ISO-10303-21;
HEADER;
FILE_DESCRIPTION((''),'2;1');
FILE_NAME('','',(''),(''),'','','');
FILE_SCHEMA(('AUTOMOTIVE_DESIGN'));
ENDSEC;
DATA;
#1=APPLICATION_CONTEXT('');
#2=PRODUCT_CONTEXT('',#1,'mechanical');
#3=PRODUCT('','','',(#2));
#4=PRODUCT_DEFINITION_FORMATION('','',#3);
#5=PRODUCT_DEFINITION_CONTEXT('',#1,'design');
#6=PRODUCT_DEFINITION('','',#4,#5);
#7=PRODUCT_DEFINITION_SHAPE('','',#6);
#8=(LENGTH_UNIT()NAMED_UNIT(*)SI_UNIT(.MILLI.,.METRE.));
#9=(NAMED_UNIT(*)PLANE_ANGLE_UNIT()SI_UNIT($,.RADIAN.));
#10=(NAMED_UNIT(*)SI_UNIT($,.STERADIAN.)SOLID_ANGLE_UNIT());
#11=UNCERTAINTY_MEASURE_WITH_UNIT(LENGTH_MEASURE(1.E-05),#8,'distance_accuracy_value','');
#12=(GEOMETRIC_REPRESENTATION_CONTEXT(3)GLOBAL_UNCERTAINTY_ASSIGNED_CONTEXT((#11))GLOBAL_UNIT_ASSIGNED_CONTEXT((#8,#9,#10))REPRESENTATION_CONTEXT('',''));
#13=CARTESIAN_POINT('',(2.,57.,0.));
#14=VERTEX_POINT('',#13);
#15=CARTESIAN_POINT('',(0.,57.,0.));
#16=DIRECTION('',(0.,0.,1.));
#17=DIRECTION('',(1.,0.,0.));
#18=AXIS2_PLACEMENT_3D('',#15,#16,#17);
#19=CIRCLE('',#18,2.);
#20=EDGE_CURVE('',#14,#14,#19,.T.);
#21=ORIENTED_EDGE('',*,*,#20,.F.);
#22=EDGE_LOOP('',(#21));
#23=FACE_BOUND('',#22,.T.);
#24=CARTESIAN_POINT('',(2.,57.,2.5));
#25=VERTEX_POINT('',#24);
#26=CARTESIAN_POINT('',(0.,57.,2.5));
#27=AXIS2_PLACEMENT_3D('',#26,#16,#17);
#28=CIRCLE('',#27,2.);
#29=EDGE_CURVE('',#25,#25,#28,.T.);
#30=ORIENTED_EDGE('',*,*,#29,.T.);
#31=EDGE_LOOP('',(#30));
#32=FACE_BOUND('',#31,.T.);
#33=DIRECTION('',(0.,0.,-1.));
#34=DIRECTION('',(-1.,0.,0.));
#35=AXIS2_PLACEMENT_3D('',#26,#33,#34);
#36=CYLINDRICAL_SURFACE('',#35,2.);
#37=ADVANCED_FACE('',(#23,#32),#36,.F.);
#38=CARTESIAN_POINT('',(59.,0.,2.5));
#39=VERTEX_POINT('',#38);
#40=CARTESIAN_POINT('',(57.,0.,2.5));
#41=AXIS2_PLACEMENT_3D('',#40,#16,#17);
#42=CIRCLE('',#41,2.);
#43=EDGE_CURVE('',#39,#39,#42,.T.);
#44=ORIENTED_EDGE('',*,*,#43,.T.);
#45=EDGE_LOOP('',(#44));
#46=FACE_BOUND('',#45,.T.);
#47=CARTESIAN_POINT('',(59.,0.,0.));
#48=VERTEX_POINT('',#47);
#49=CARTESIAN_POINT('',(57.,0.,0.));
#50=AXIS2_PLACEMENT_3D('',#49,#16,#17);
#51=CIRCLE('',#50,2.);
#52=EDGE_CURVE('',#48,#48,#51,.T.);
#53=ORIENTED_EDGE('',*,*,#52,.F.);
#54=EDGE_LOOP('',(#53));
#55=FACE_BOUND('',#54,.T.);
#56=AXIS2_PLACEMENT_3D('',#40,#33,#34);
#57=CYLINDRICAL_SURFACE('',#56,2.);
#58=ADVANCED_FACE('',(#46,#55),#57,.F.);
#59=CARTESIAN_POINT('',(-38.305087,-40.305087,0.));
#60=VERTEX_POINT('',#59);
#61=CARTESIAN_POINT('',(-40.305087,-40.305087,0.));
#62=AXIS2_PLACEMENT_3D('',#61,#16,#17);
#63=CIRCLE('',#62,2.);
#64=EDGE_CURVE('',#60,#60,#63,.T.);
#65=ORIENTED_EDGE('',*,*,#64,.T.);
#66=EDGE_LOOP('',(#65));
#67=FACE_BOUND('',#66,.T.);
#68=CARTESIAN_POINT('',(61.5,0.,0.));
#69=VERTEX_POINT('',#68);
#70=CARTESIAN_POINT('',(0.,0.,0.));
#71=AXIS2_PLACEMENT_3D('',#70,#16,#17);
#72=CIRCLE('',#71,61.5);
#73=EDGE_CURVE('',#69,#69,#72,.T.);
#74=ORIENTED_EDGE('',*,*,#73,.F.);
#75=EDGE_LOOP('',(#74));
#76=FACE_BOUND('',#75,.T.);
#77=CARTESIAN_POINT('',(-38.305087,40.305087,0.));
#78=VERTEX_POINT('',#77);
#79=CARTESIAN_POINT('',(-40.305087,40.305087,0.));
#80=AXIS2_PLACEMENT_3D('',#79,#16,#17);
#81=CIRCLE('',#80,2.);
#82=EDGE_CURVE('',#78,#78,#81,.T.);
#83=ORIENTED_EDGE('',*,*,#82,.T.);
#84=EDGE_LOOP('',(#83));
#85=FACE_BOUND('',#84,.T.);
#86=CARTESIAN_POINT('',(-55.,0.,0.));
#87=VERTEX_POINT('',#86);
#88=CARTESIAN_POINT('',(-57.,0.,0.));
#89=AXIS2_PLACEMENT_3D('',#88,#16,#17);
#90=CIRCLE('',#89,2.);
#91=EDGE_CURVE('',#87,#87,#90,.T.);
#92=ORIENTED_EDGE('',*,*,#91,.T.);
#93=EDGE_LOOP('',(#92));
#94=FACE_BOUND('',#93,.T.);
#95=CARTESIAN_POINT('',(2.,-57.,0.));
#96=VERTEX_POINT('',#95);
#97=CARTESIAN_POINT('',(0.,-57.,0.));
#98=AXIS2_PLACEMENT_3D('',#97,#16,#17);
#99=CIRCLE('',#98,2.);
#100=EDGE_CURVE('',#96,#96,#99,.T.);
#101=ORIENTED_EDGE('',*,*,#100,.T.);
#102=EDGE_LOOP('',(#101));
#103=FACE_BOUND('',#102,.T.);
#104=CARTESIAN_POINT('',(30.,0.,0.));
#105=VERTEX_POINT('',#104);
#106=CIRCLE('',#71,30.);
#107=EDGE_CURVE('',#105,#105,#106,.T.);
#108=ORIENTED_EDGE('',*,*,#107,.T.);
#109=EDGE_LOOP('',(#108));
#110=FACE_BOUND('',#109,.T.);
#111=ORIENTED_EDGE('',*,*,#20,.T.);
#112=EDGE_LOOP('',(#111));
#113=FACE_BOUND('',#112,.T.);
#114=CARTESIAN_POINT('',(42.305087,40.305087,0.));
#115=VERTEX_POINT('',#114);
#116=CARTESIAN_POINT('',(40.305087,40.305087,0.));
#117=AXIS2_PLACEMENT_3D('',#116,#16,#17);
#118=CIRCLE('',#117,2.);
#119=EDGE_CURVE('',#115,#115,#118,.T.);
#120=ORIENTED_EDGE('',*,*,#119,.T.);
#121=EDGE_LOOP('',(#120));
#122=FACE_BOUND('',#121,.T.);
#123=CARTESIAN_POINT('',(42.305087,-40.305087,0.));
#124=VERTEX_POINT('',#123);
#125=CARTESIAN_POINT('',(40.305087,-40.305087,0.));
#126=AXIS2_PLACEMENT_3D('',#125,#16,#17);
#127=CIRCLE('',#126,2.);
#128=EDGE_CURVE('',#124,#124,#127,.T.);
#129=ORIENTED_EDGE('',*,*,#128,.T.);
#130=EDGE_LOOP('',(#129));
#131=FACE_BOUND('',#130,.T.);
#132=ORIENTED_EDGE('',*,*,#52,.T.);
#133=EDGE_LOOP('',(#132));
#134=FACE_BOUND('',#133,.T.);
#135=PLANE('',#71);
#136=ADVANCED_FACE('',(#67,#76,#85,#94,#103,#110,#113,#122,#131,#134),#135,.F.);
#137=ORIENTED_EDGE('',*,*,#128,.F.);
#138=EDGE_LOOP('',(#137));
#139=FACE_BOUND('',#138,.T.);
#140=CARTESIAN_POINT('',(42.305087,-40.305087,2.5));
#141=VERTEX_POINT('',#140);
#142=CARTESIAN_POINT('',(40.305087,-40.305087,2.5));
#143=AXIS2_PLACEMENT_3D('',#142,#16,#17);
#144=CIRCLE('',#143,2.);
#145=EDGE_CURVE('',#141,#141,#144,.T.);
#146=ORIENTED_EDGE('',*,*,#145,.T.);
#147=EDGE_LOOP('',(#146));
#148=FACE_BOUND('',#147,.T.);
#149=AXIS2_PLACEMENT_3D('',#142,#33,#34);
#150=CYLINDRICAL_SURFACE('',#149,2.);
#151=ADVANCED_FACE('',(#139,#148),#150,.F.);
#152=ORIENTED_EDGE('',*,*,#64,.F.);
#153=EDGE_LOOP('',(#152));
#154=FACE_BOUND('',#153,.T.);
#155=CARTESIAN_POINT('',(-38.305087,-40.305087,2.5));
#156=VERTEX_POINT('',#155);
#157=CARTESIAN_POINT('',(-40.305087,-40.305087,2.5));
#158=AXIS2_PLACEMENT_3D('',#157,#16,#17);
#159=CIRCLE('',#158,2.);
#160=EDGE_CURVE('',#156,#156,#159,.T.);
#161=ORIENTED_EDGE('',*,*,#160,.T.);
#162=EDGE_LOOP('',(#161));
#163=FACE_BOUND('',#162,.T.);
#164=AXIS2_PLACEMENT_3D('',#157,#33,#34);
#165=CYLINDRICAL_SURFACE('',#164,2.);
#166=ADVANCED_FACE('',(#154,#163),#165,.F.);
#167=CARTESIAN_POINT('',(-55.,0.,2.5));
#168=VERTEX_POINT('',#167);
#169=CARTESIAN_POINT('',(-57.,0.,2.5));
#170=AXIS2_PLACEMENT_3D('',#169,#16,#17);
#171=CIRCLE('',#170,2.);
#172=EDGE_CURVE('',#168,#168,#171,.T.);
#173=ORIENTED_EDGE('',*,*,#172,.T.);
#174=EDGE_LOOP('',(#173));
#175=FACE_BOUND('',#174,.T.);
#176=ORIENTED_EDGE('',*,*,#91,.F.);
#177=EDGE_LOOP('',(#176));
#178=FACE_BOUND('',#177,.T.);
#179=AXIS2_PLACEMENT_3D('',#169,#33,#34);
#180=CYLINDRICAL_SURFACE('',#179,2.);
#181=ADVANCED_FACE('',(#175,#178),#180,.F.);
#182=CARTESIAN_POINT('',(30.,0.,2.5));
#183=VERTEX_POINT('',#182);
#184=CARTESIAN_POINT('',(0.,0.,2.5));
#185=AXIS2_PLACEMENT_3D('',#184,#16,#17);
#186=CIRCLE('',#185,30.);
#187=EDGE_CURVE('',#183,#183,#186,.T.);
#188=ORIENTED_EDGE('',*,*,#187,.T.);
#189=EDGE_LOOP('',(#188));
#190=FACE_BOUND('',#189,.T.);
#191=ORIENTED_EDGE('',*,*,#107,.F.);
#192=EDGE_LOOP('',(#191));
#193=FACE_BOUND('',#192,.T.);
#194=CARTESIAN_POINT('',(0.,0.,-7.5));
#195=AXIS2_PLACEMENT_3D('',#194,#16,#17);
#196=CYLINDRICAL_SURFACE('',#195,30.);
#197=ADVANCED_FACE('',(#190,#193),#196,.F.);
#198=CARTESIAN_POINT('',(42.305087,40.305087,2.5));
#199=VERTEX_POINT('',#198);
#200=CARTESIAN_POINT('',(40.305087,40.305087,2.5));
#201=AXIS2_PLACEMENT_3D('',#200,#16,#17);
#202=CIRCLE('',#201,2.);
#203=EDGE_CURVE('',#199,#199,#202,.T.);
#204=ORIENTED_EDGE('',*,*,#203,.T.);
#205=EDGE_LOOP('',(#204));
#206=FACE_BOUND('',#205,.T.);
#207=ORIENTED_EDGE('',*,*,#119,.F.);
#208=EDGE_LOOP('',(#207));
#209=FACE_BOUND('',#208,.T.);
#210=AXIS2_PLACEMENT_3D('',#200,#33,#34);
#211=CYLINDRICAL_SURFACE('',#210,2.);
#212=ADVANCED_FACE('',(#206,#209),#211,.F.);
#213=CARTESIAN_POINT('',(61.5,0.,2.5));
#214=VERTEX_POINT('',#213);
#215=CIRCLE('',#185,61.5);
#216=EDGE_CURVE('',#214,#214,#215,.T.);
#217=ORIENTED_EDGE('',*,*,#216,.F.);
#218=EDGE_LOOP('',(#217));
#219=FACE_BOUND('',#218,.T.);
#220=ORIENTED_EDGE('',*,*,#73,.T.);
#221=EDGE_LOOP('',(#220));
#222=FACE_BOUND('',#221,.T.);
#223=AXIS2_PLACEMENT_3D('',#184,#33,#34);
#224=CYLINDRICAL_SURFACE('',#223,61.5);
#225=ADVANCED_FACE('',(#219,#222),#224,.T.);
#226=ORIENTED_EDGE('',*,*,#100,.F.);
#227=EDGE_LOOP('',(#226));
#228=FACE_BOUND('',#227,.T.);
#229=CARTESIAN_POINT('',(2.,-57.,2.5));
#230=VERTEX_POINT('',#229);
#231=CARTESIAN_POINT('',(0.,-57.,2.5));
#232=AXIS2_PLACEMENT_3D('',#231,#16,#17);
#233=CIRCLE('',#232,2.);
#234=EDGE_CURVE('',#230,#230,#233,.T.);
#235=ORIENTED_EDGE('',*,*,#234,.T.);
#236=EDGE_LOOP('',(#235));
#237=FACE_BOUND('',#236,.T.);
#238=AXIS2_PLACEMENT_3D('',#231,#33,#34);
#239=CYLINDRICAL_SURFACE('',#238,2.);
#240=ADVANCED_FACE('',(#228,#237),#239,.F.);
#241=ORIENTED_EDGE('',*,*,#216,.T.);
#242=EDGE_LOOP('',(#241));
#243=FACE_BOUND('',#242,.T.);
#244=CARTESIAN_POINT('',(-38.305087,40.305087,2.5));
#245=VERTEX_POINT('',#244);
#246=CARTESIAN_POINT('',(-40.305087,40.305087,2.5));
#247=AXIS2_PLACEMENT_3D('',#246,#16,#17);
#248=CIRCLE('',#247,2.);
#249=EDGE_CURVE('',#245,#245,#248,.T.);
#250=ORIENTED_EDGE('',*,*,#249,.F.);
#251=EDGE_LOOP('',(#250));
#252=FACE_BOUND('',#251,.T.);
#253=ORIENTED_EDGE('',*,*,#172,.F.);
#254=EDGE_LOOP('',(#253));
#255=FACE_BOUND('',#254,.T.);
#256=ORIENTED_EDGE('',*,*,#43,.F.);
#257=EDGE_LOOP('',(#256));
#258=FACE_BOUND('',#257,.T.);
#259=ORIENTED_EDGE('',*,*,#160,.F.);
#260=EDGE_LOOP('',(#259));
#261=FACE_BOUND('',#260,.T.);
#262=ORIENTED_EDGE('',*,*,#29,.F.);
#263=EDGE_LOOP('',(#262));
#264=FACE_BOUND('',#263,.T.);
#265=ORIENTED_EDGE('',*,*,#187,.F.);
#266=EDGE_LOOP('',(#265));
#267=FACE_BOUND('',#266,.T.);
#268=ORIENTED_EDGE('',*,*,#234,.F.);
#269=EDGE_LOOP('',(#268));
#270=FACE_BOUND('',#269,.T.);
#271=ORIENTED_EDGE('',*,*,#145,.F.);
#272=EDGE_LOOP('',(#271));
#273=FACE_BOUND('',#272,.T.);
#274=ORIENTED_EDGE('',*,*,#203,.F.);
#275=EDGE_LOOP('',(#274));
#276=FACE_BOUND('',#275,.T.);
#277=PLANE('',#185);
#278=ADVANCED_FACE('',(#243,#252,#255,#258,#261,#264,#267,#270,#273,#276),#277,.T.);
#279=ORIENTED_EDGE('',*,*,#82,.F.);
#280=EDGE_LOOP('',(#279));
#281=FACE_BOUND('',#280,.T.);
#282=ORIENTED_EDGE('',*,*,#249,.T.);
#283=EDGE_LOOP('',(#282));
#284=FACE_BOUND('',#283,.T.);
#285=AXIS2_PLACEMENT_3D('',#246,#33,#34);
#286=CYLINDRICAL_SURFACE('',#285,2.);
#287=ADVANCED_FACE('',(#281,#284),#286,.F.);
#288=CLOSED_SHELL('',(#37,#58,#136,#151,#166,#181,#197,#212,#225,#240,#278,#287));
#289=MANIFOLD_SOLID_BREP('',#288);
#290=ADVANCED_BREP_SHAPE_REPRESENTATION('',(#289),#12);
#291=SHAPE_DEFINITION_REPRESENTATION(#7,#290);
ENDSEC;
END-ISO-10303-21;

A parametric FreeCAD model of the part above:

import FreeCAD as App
import Part
import Sketcher
Q = App.Units.Quantity

doc = App.newDocument("Part")
body = doc.addObject("PartDesign::Body", "Body")

# Sketch on XY plane
sketch1 = doc.addObject("Sketcher::SketchObject", "Sketch")
body.addObject(sketch1)
sketch1.AttachmentSupport = (doc.XY_Plane, [""])
sketch1.MapMode = "FlatFace"
sketch1.addGeometry([
    Part.Circle(App.Vector(0, 0, 0), App.Vector(0, 0, 1), 61.5),  # 0
    Part.Circle(App.Vector(-40.3, -40.3, 0), App.Vector(0, 0, 1), 2),  # 1
    Part.Circle(App.Vector(-19.5, -11.2, 0), App.Vector(0, 0, 1), 2.6),  # 2
    Part.Circle(App.Vector(0, -57, 0), App.Vector(0, 0, 1), 2),  # 3
    Part.Circle(App.Vector(40.3, -40.3, 0), App.Vector(0, 0, 1), 2),  # 4
    Part.Circle(App.Vector(0, -23.8, 0), App.Vector(0, 0, 1), 2.6),  # 5
    Part.Circle(App.Vector(19.5, -11.2, 0), App.Vector(0, 0, 1), 2.6),  # 6
    Part.Circle(App.Vector(-57, 0, 0), App.Vector(0, 0, 1), 2),  # 7
    Part.Circle(App.Vector(-20.6, 11.9, 0), App.Vector(0, 0, 1), 2.6),  # 8
    Part.Circle(App.Vector(-40.3, 40.3, 0), App.Vector(0, 0, 1), 2),  # 9
    Part.Circle(App.Vector(0, 0, 0), App.Vector(0, 0, 1), 15.5),  # 10
    Part.Circle(App.Vector(20.6, 11.9, 0), App.Vector(0, 0, 1), 2.6),  # 11
    Part.Circle(App.Vector(0, 22.5, 0), App.Vector(0, 0, 1), 2.6),  # 12
    Part.Circle(App.Vector(57, 0, 0), App.Vector(0, 0, 1), 2),  # 13
    Part.Circle(App.Vector(0, 57, 0), App.Vector(0, 0, 1), 2),  # 14
    Part.Circle(App.Vector(40.3, 40.3, 0), App.Vector(0, 0, 1), 2),  # 15
], False)
sketch1.addConstraint([
    Sketcher.Constraint("Coincident", 0, 3, -1, 1),
    Sketcher.Constraint("Coincident", 10, 3, -1, 1),
    Sketcher.Constraint("Equal", 1, 3),
    Sketcher.Constraint("Equal", 3, 4),
    Sketcher.Constraint("Equal", 2, 5),
    Sketcher.Constraint("Equal", 5, 6),
    Sketcher.Constraint("Equal", 4, 7),
    Sketcher.Constraint("Equal", 6, 8),
    Sketcher.Constraint("Equal", 7, 9),
    Sketcher.Constraint("Equal", 8, 11),
    Sketcher.Constraint("Equal", 11, 12),
    Sketcher.Constraint("Equal", 9, 13),
    Sketcher.Constraint("Equal", 13, 14),
    Sketcher.Constraint("Equal", 14, 15),
    Sketcher.Constraint("Symmetric", 4, 3, 9, 3, -1, 1),
    Sketcher.Constraint("Symmetric", 7, 3, 13, 3, -1, 1),
    Sketcher.Constraint("Symmetric", 3, 3, 14, 3, -1, 1),
    Sketcher.Constraint("Symmetric", 1, 3, 15, 3, -1, 1),
    Sketcher.Constraint("Symmetric", 1, 3, 4, 3, -2),
    Sketcher.Constraint("Symmetric", 2, 3, 6, 3, -2),
    Sketcher.Constraint("Symmetric", 8, 3, 11, 3, -2),
    Sketcher.Constraint("PointOnObject", 3, 3, -2),
    Sketcher.Constraint("PointOnObject", 5, 3, -2),
    Sketcher.Constraint("PointOnObject", 7, 3, -1),
    Sketcher.Constraint("PointOnObject", 12, 3, -2),
    Sketcher.Constraint("Diameter", 0, Q("123 mm")),
    Sketcher.Constraint("Diameter", 1, Q("4 mm")),
    Sketcher.Constraint("Diameter", 10, Q("31 mm")),
    Sketcher.Constraint("Diameter", 2, Q("5.2 mm")),
    Sketcher.Constraint("DistanceY", 3, 3, -1, 1, Q("57 mm")),
    Sketcher.Constraint("DistanceX", 7, 3, -1, 1, Q("57 mm")),
    Sketcher.Constraint("DistanceY", -1, 1, 12, 3, Q("22.5 mm")),
    Sketcher.Constraint("DistanceY", 5, 3, 2, 3, Q("12.5 mm")),
    Sketcher.Constraint("DistanceY", 2, 3, -1, 1, Q("11.25 mm")),
    Sketcher.Constraint("DistanceY", -1, 1, 8, 3, Q("11.875 mm")),
    Sketcher.Constraint("DistanceX", 2, 3, -1, 1, Q("19.485572 mm")),
    Sketcher.Constraint("DistanceX", 2, 3, 4, 3, Q("59.790658 mm")),
    Sketcher.Constraint("DistanceX", 8, 3, 2, 3, Q("1.082532 mm")),
    Sketcher.Constraint("DistanceY", 1, 3, -1, 1, Q("40.305087 mm")),
])
pad1 = doc.addObject("PartDesign::Pad", "Pad")
body.addObject(pad1)
pad1.Profile = sketch1
pad1.Length = 2.5

# Sketch on XY plane
sketch2 = doc.addObject("Sketcher::SketchObject", "Sketch001")
body.addObject(sketch2)
sketch2.AttachmentSupport = (doc.XY_Plane, [""])
sketch2.MapMode = "FlatFace"
sketch2.AttachmentOffset = App.Placement(App.Vector(0, 0, 2.5), App.Rotation())
sketch2.addGeometry(Part.Circle(App.Vector(0, 0, 0), App.Vector(0, 0, 1), 30), False)
sketch2.addConstraint([
    Sketcher.Constraint("Coincident", 0, 3, -1, 1),
    Sketcher.Constraint("Diameter", 0, Q("60 mm")),
])
pocket1 = doc.addObject("PartDesign::Pocket", "Pocket")
body.addObject(pocket1)
pocket1.Profile = sketch2
pocket1.Length = 10

doc.recompute()
